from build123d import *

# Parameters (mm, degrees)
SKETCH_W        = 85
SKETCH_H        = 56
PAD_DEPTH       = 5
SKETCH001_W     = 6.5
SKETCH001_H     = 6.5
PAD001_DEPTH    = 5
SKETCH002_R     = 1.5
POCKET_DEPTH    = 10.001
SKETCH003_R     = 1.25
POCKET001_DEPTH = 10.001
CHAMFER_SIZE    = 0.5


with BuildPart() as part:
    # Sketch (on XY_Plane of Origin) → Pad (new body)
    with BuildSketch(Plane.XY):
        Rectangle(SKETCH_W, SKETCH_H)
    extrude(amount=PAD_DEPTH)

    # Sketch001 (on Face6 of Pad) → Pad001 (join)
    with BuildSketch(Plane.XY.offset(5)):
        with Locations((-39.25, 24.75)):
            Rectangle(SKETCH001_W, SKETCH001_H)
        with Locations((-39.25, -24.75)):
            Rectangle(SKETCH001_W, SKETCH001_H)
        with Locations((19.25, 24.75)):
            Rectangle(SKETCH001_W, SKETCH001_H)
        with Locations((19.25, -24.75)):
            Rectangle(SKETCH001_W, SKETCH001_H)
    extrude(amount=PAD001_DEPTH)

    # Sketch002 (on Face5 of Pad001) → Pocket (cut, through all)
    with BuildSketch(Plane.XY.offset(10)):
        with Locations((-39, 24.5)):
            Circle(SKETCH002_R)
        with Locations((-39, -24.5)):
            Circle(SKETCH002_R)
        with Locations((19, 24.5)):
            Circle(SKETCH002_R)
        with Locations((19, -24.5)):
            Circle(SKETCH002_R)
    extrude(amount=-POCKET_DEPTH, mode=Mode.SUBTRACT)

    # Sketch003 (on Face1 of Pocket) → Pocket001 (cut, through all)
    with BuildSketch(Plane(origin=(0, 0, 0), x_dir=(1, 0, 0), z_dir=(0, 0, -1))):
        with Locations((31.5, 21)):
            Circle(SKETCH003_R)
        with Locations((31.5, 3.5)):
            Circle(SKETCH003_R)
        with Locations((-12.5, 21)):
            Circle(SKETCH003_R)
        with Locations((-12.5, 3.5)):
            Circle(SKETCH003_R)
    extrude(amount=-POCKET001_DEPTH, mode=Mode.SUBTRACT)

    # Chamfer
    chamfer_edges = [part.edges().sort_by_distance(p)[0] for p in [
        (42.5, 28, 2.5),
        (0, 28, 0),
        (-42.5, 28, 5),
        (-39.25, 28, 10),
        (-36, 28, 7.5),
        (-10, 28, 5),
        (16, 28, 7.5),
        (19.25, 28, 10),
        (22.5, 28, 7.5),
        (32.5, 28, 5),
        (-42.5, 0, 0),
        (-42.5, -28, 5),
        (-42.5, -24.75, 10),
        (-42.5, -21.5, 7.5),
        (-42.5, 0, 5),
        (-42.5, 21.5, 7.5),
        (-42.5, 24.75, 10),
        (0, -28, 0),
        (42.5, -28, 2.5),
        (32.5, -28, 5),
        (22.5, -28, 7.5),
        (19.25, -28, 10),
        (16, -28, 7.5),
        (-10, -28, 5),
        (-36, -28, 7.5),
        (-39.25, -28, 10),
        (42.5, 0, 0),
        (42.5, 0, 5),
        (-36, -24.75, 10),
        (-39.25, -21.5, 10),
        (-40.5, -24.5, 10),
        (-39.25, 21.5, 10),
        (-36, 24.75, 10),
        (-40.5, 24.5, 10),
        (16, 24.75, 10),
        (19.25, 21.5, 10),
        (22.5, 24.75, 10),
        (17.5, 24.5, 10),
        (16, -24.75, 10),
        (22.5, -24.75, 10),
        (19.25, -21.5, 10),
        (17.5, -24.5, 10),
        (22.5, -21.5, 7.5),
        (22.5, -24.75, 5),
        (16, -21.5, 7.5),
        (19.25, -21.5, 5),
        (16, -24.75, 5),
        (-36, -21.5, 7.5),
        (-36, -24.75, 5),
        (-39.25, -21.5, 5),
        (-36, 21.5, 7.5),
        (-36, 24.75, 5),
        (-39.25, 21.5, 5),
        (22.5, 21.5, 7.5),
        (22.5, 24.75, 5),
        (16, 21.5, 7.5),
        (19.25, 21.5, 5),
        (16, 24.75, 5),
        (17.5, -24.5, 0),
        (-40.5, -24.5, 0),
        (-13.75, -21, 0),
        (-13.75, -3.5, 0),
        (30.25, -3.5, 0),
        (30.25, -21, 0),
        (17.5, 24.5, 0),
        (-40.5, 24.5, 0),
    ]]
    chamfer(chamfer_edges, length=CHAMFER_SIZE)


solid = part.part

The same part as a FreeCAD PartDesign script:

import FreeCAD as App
import Part
import Sketcher
from FreeCAD import Vector
Q = App.Units.Quantity


def edges_at(feature, points):
    """Names of the edges that pass closest to the given points."""
    edges = feature.Shape.Edges
    near = lambda p: min(range(len(edges)), key=lambda i: edges[i].distToShape(Part.Vertex(*p))[0])
    return sorted({f"Edge{near(p) + 1}" for p in points})


def add_polygon(sketch, points):
    """Adds a closed chain of lines whose ends are joined by coincident constraints."""
    first, n = sketch.GeometryCount, len(points)
    for a, b in zip(points, points[1:] + points[:1]):
        sketch.addGeometry(Part.LineSegment(App.Vector(*a, 0), App.Vector(*b, 0)), False)
    for i in range(n):
        sketch.addConstraint(Sketcher.Constraint("Coincident", first + i, 2, first + (i + 1) % n, 1))

doc = App.newDocument("Part")
body = doc.addObject("PartDesign::Body", "Body")

sketch1 = body.newObject("Sketcher::SketchObject", "Sketch")
sketch1.AttachmentSupport = (doc.getObject("XY_Plane"), [""])
sketch1.MapMode = "FlatFace"
add_polygon(sketch1, [(-42, 28), (-42, -28), (42, -28), (42, 28)])
sketch1.addConstraint(Sketcher.Constraint("Vertical", 0))
sketch1.addConstraint(Sketcher.Constraint("Horizontal", 1))
sketch1.addConstraint(Sketcher.Constraint("Vertical", 2))
sketch1.addConstraint(Sketcher.Constraint("Horizontal", 3))
sketch1.addConstraint(Sketcher.Constraint("Symmetric", 0, 2, 2, 2, -1, 1))
sketch1.addConstraint(Sketcher.Constraint("DistanceX", 1, 1, 1, 2, Q("85 mm")))
sketch1.addConstraint(Sketcher.Constraint("DistanceY", 0, 2, 0, 1, Q("56 mm")))
pad1 = body.newObject("PartDesign::Pad", "Pad")
pad1.Profile = sketch1
pad1.Length = 5

sketch2 = body.newObject("Sketcher::SketchObject", "Sketch001")
sketch2.AttachmentSupport = (doc.getObject("XY_Plane"), [""])
sketch2.MapMode = "FlatFace"
sketch2.AttachmentOffset = App.Placement(Vector(0, 0, 5), App.Rotation())
add_polygon(sketch2, [(-42, 28), (-42, 22), (-36, 22), (-36, 28)])
add_polygon(sketch2, [(-42, -22), (-42, -28), (-36, -28), (-36, -22)])
add_polygon(sketch2, [(16, 28), (16, 22), (22, 22), (22, 28)])
add_polygon(sketch2, [(16, -22), (16, -28), (22, -28), (22, -22)])
sketch2.addConstraint(Sketcher.Constraint("Vertical", 0))
sketch2.addConstraint(Sketcher.Constraint("Horizontal", 1))
sketch2.addConstraint(Sketcher.Constraint("Vertical", 2))
sketch2.addConstraint(Sketcher.Constraint("Horizontal", 3))
sketch2.addConstraint(Sketcher.Constraint("Vertical", 4))
sketch2.addConstraint(Sketcher.Constraint("Horizontal", 5))
sketch2.addConstraint(Sketcher.Constraint("Vertical", 6))
sketch2.addConstraint(Sketcher.Constraint("Horizontal", 7))
sketch2.addConstraint(Sketcher.Constraint("Vertical", 8))
sketch2.addConstraint(Sketcher.Constraint("Horizontal", 9))
sketch2.addConstraint(Sketcher.Constraint("Vertical", 10))
sketch2.addConstraint(Sketcher.Constraint("Horizontal", 11))
sketch2.addConstraint(Sketcher.Constraint("Vertical", 12))
sketch2.addConstraint(Sketcher.Constraint("Horizontal", 13))
sketch2.addConstraint(Sketcher.Constraint("Vertical", 14))
sketch2.addConstraint(Sketcher.Constraint("Horizontal", 15))
sketch2.addConstraint(Sketcher.Constraint("Symmetric", 3, 2, 4, 2, -1))
sketch2.addConstraint(Sketcher.Constraint("Symmetric", 1, 2, 6, 2, -1))
sketch2.addConstraint(Sketcher.Constraint("Symmetric", 11, 2, 12, 2, -1))
sketch2.addConstraint(Sketcher.Constraint("Symmetric", 9, 2, 14, 2, -1))
sketch2.addConstraint(Sketcher.Constraint("Horizontal", 1, 2, 8, 2))
sketch2.addConstraint(Sketcher.Constraint("Horizontal", 3, 2, 10, 2))
sketch2.addConstraint(Sketcher.Constraint("Equal", 7, 9))
sketch2.addConstraint(Sketcher.Constraint("Equal", 15, 0))
sketch2.addConstraint(Sketcher.Constraint("DistanceX", 1, 1, 1, 2, Q("6.5 mm")))
sketch2.addConstraint(Sketcher.Constraint("DistanceX", 1, 2, -1, 1, Q("36 mm")))
sketch2.addConstraint(Sketcher.Constraint("DistanceY", -1, 1, 2, 2, Q("28 mm")))
sketch2.addConstraint(Sketcher.Constraint("DistanceX", -1, 1, 8, 2, Q("16 mm")))
pad2 = body.newObject("PartDesign::Pad", "Pad001")
pad2.Profile = sketch2
pad2.Length = 5

sketch3 = body.newObject("Sketcher::SketchObject", "Sketch002")
sketch3.AttachmentSupport = (doc.getObject("XY_Plane"), [""])
sketch3.MapMode = "FlatFace"
sketch3.AttachmentOffset = App.Placement(Vector(0, 0, 10), App.Rotation())
sketch3.addGeometry(Part.Circle(Vector(-39, 24.5, 0), Vector(0, 0, 1), 1.5), False)
sketch3.addGeometry(Part.Circle(Vector(-39, -24.5, 0), Vector(0, 0, 1), 1.5), False)
sketch3.addGeometry(Part.Circle(Vector(19, 24.5, 0), Vector(0, 0, 1), 1.5), False)
sketch3.addGeometry(Part.Circle(Vector(19, -24.5, 0), Vector(0, 0, 1), 1.5), False)
sketch3.addConstraint(Sketcher.Constraint("Equal", 0, 1))
sketch3.addConstraint(Sketcher.Constraint("Equal", 1, 2))
sketch3.addConstraint(Sketcher.Constraint("Equal", 2, 3))
sketch3.addConstraint(Sketcher.Constraint("Symmetric", 0, 3, 1, 3, -1))
sketch3.addConstraint(Sketcher.Constraint("Symmetric", 2, 3, 3, 3, -1))
sketch3.addConstraint(Sketcher.Constraint("Horizontal", 0, 3, 2, 3))
sketch3.addConstraint(Sketcher.Constraint("Diameter", 0, Q("3 mm")))
sketch3.addConstraint(Sketcher.Constraint("DistanceX", 0, 3, -1, 1, Q("39 mm")))
sketch3.addConstraint(Sketcher.Constraint("DistanceX", -1, 1, 2, 3, Q("19 mm")))
sketch3.addConstraint(Sketcher.Constraint("DistanceY", 1, 3, 0, 3, Q("49 mm")))
pocket1 = body.newObject("PartDesign::Pocket", "Pocket")
pocket1.Profile = sketch3
pocket1.Type = "ThroughAll"

sketch4 = body.newObject("Sketcher::SketchObject", "Sketch003")
sketch4.AttachmentSupport = (doc.getObject("XY_Plane"), [""])
sketch4.MapMode = "FlatFace"
sketch4.addGeometry(Part.Circle(Vector(31.5, -21, 0), Vector(0, 0, 1), 1.2), False)
sketch4.addGeometry(Part.Circle(Vector(31.5, -3.5, 0), Vector(0, 0, 1), 1.2), False)
sketch4.addGeometry(Part.Circle(Vector(-12.5, -21, 0), Vector(0, 0, 1), 1.2), False)
sketch4.addGeometry(Part.Circle(Vector(-12.5, -3.5, 0), Vector(0, 0, 1), 1.2), False)
sketch4.addConstraint(Sketcher.Constraint("Equal", 0, 1))
sketch4.addConstraint(Sketcher.Constraint("Equal", 1, 2))
sketch4.addConstraint(Sketcher.Constraint("Equal", 2, 3))
sketch4.addConstraint(Sketcher.Constraint("Horizontal", 0, 3, 2, 3))
sketch4.addConstraint(Sketcher.Constraint("Horizontal", 1, 3, 3, 3))
sketch4.addConstraint(Sketcher.Constraint("Vertical", 0, 3, 1, 3))
sketch4.addConstraint(Sketcher.Constraint("Vertical", 2, 3, 3, 3))
sketch4.addConstraint(Sketcher.Constraint("Diameter", 0, Q("2.5 mm")))
sketch4.addConstraint(Sketcher.Constraint("DistanceY", 0, 3, -1, 1, Q("21 mm")))
sketch4.addConstraint(Sketcher.Constraint("DistanceX", 2, 3, 0, 3, Q("44 mm")))
sketch4.addConstraint(Sketcher.Constraint("DistanceX", -1, 1, 0, 3, Q("31.5 mm")))
sketch4.addConstraint(Sketcher.Constraint("DistanceY", 1, 3, -1, 1, Q("3.5 mm")))
pocket2 = body.newObject("PartDesign::Pocket", "Pocket001")
pocket2.Profile = sketch4
pocket2.Type = "ThroughAll"
pocket2.Reversed = True
doc.recompute()

chamfer = body.newObject("PartDesign::Chamfer", "Chamfer")
chamfer.Base = (pocket2, edges_at(pocket2, [
    (42.5, 28, 2.5),
    (0, 28, 0),
    (-42.5, 28, 5),
    (-39.25, 28, 10),
    (-36, 28, 7.5),
    (-10, 28, 5),
    (16, 28, 7.5),
    (19.25, 28, 10),
    (22.5, 28, 7.5),
    (32.5, 28, 5),
    (-42.5, 0, 0),
    (-42.5, -28, 5),
    (-42.5, -24.75, 10),
    (-42.5, -21.5, 7.5),
    (-42.5, 0, 5),
    (-42.5, 21.5, 7.5),
    (-42.5, 24.75, 10),
    (0, -28, 0),
    (42.5, -28, 2.5),
    (32.5, -28, 5),
    (22.5, -28, 7.5),
    (19.25, -28, 10),
    (16, -28, 7.5),
    (-10, -28, 5),
    (-36, -28, 7.5),
    (-39.25, -28, 10),
    (42.5, 0, 0),
    (42.5, 0, 5),
    (-36, -24.75, 10),
    (-39.25, -21.5, 10),
    (-40.5, -24.5, 10),
    (-39.25, 21.5, 10),
    (-36, 24.75, 10),
    (-40.5, 24.5, 10),
    (16, 24.75, 10),
    (19.25, 21.5, 10),
    (22.5, 24.75, 10),
    (17.5, 24.5, 10),
    (16, -24.75, 10),
    (22.5, -24.75, 10),
    (19.25, -21.5, 10),
    (17.5, -24.5, 10),
    (22.5, -21.5, 7.5),
    (22.5, -24.75, 5),
    (16, -21.5, 7.5),
    (19.25, -21.5, 5),
    (16, -24.75, 5),
    (-36, -21.5, 7.5),
    (-36, -24.75, 5),
    (-39.25, -21.5, 5),
    (-36, 21.5, 7.5),
    (-36, 24.75, 5),
    (-39.25, 21.5, 5),
    (22.5, 21.5, 7.5),
    (22.5, 24.75, 5),
    (16, 21.5, 7.5),
    (19.25, 21.5, 5),
    (16, 24.75, 5),
    (17.5, -24.5, 0),
    (-40.5, -24.5, 0),
    (-13.75, -21, 0),
    (-13.75, -3.5, 0),
    (30.25, -3.5, 0),
    (30.25, -21, 0),
    (17.5, 24.5, 0),
    (-40.5, 24.5, 0),
]))
chamfer.Size = 0.5

doc.recompute()
